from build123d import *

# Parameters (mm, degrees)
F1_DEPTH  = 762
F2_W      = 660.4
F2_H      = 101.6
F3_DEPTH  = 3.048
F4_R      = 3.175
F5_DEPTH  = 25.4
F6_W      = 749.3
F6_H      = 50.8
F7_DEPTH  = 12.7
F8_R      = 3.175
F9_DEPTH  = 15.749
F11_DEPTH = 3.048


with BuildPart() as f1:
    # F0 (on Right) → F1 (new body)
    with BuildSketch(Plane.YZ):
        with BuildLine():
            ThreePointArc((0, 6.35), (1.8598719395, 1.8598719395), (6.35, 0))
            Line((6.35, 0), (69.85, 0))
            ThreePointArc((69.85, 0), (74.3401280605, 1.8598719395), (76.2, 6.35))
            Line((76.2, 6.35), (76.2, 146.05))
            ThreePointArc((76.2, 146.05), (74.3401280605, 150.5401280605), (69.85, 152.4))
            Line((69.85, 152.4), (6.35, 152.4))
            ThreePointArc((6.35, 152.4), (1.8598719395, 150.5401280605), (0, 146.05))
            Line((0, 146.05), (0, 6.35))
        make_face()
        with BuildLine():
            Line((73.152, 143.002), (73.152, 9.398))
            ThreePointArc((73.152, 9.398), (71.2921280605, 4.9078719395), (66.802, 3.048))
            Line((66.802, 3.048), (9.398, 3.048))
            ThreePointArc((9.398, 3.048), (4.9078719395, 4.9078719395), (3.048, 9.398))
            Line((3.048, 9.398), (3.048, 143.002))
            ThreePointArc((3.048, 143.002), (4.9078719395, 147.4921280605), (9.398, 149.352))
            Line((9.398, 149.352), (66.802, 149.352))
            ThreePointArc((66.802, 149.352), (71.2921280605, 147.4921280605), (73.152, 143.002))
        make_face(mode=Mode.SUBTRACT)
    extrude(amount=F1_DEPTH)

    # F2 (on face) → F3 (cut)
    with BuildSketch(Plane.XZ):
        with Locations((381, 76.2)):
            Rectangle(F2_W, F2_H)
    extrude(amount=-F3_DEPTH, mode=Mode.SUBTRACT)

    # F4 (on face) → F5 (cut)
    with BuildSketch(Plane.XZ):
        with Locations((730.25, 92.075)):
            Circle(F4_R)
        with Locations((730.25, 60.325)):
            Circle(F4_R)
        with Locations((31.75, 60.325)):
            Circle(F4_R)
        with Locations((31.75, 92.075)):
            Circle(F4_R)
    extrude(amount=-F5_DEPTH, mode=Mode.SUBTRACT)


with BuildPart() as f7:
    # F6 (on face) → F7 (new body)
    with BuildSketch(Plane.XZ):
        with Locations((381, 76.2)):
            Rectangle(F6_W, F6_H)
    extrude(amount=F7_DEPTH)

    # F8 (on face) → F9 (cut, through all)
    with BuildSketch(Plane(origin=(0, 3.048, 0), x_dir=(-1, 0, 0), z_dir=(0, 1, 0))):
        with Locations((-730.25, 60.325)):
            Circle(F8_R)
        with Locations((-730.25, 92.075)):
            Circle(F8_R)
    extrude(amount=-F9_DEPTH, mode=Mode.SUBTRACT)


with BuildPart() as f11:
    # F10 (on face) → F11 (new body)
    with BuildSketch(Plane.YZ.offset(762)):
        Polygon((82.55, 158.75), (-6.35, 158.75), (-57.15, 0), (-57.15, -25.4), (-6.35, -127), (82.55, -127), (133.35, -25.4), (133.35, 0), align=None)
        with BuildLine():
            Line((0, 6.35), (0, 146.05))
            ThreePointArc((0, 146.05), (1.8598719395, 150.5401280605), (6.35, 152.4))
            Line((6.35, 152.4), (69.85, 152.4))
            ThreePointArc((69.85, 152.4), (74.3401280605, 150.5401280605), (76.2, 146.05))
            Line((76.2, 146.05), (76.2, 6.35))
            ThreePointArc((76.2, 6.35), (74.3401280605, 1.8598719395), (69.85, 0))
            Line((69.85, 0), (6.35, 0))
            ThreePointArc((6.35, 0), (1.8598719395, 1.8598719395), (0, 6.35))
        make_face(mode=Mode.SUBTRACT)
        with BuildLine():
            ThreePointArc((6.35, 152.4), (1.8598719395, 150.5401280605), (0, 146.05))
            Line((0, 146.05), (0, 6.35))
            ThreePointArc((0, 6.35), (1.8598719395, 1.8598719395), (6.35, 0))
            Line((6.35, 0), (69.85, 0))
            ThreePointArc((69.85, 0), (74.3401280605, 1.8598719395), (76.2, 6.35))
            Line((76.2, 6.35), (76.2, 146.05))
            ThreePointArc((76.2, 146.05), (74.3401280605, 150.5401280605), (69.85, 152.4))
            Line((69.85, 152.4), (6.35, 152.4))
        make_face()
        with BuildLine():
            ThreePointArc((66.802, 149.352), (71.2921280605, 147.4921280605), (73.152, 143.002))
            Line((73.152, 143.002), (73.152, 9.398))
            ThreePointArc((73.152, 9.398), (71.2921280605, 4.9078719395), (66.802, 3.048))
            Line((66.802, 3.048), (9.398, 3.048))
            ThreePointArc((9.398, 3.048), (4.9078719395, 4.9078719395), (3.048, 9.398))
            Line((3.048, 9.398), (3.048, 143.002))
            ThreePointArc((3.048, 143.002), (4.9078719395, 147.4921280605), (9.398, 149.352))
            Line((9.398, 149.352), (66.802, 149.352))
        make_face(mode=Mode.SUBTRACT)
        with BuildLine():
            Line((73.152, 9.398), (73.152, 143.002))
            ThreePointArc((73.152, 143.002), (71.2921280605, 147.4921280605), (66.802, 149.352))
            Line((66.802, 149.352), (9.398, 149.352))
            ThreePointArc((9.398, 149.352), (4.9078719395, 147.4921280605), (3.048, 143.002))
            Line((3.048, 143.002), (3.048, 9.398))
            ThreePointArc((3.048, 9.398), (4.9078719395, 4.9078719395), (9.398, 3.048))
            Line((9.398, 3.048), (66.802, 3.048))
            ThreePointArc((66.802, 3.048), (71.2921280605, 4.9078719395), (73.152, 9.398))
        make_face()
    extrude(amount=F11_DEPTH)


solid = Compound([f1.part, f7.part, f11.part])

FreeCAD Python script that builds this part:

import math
import FreeCAD as App
import Part
import Sketcher
from FreeCAD import Vector
Q = App.Units.Quantity


def add_polygon(sketch, points):
    """Adds a closed chain of lines whose ends are joined by coincident constraints."""
    first, n = sketch.GeometryCount, len(points)
    for a, b in zip(points, points[1:] + points[:1]):
        sketch.addGeometry(Part.LineSegment(App.Vector(*a, 0), App.Vector(*b, 0)), False)
    for i in range(n):
        sketch.addConstraint(Sketcher.Constraint("Coincident", first + i, 2, first + (i + 1) % n, 1))

doc = App.newDocument("Part")
body = doc.addObject("PartDesign::Body", "Body")

# Sketch on YZ plane
sketch1 = body.newObject("Sketcher::SketchObject", "Sketch")
sketch1.AttachmentSupport = (doc.getObject("YZ_Plane"), [""])
sketch1.MapMode = "FlatFace"
sketch1.addGeometry([
    Part.ArcOfCircle(Part.Circle(Vector(6.35, 6.35, 0), Vector(0, 0, 1), 6.35), math.radians(180), math.radians(270)),  # 0
    Part.LineSegment(Vector(6.35, 0, 0), Vector(69.85, 0, 0)),  # 1
    Part.ArcOfCircle(Part.Circle(Vector(69.85, 6.35, 0), Vector(0, 0, 1), 6.35), math.radians(-90), math.radians(0)),  # 2
    Part.LineSegment(Vector(76.2, 6.35, 0), Vector(76.2, 146.05, 0)),  # 3
    Part.ArcOfCircle(Part.Circle(Vector(69.85, 146.05, 0), Vector(0, 0, 1), 6.35), math.radians(0), math.radians(90)),  # 4
    Part.LineSegment(Vector(69.85, 152.4, 0), Vector(6.35, 152.4, 0)),  # 5
    Part.ArcOfCircle(Part.Circle(Vector(6.35, 146.05, 0), Vector(0, 0, 1), 6.35), math.radians(90), math.radians(180)),  # 6
    Part.LineSegment(Vector(0, 146.05, 0), Vector(0, 6.35, 0)),  # 7
    Part.ArcOfCircle(Part.Circle(Vector(66.802, 143.002, 0), Vector(0, 0, 1), 6.35), math.radians(0), math.radians(90)),  # 8
    Part.LineSegment(Vector(73.152, 143.002, 0), Vector(73.152, 9.398, 0)),  # 9
    Part.ArcOfCircle(Part.Circle(Vector(66.802, 9.398, 0), Vector(0, 0, 1), 6.35), math.radians(-90), math.radians(0)),  # 10
    Part.LineSegment(Vector(66.802, 3.048, 0), Vector(9.398, 3.048, 0)),  # 11
    Part.ArcOfCircle(Part.Circle(Vector(9.398, 9.398, 0), Vector(0, 0, 1), 6.35), math.radians(180), math.radians(270)),  # 12
    Part.LineSegment(Vector(3.048, 9.398, 0), Vector(3.048, 143.002, 0)),  # 13
    Part.ArcOfCircle(Part.Circle(Vector(9.398, 143.002, 0), Vector(0, 0, 1), 6.35), math.radians(90), math.radians(180)),  # 14
    Part.LineSegment(Vector(9.398, 149.352, 0), Vector(66.802, 149.352, 0)),  # 15
], False)
sketch1.addConstraint([
    Sketcher.Constraint("Tangent", 0, 2, 1, 1),
    Sketcher.Constraint("Tangent", 1, 2, 2, 1),
    Sketcher.Constraint("Tangent", 2, 2, 3, 1),
    Sketcher.Constraint("Tangent", 3, 2, 4, 1),
    Sketcher.Constraint("Tangent", 4, 2, 5, 1),
    Sketcher.Constraint("Tangent", 5, 2, 6, 1),
    Sketcher.Constraint("Tangent", 6, 2, 7, 1),
    Sketcher.Constraint("Tangent", 7, 2, 0, 1),
    Sketcher.Constraint("Tangent", 8, 1, 9, 1),
    Sketcher.Constraint("Tangent", 9, 2, 10, 2),
    Sketcher.Constraint("Tangent", 10, 1, 11, 1),
    Sketcher.Constraint("Tangent", 11, 2, 12, 2),
    Sketcher.Constraint("Tangent", 12, 1, 13, 1),
    Sketcher.Constraint("Tangent", 13, 2, 14, 2),
    Sketcher.Constraint("Tangent", 14, 1, 15, 1),
    Sketcher.Constraint("Tangent", 15, 2, 8, 2),
    Sketcher.Constraint("Horizontal", 1),
    Sketcher.Constraint("Vertical", 3),
    Sketcher.Constraint("Horizontal", 5),
    Sketcher.Constraint("Vertical", 7),
    Sketcher.Constraint("Vertical", 9),
    Sketcher.Constraint("Horizontal", 11),
    Sketcher.Constraint("Vertical", 13),
    Sketcher.Constraint("Horizontal", 15),
    Sketcher.Constraint("Equal", 0, 2),
    Sketcher.Constraint("Equal", 2, 4),
    Sketcher.Constraint("Equal", 4, 6),
    Sketcher.Constraint("Equal", 6, 8),
    Sketcher.Constraint("Equal", 8, 10),
    Sketcher.Constraint("Equal", 10, 12),
    Sketcher.Constraint("Equal", 12, 14),
    Sketcher.Constraint("PointOnObject", 0, 2, -1),
    Sketcher.Constraint("PointOnObject", 6, 2, -2),
    Sketcher.Constraint("Radius", 0, Q("0.25 in")),
    Sketcher.Constraint("DistanceX", 1, 1, 1, 2, Q("2.5 in")),
    Sketcher.Constraint("DistanceY", 3, 1, 3, 2, Q("5.5 in")),
    Sketcher.Constraint("DistanceX", 11, 2, 11, 1, Q("2.26 in")),
    Sketcher.Constraint("DistanceY", 9, 2, 9, 1, Q("5.26 in")),
    Sketcher.Constraint("DistanceX", -1, 1, 8, 3, Q("2.63 in")),
    Sketcher.Constraint("DistanceY", -1, 1, 8, 3, Q("5.63 in")),
])
pad1 = body.newObject("PartDesign::Pad", "Pad")
pad1.Profile = sketch1
pad1.Length = Q("30 in")

# Sketch on XZ plane
sketch2 = body.newObject("Sketcher::SketchObject", "Sketch001")
sketch2.AttachmentSupport = (doc.getObject("XZ_Plane"), [""])
sketch2.MapMode = "FlatFace"
add_polygon(sketch2, [(50.8, 127), (50.8, 25.4), (711.2, 25.4), (711.2, 127)])  # lines 0-3
sketch2.addConstraint([
    Sketcher.Constraint("Vertical", 0),
    Sketcher.Constraint("Horizontal", 1),
    Sketcher.Constraint("Vertical", 2),
    Sketcher.Constraint("Horizontal", 3),
    Sketcher.Constraint("DistanceX", 1, 1, 1, 2, Q("26 in")),
    Sketcher.Constraint("DistanceY", 0, 2, 0, 1, Q("4 in")),
    Sketcher.Constraint("DistanceX", -1, 1, 0, 2, Q("2 in")),
    Sketcher.Constraint("DistanceY", -1, 1, 0, 2, Q("1 in")),
])
pocket1 = body.newObject("PartDesign::Pocket", "Pocket")
pocket1.Profile = sketch2
pocket1.Length = Q("0.12 in")

# Sketch on XZ plane
sketch3 = body.newObject("Sketcher::SketchObject", "Sketch002")
sketch3.AttachmentSupport = (doc.getObject("XZ_Plane"), [""])
sketch3.MapMode = "FlatFace"
sketch3.addGeometry([
    Part.Circle(Vector(730.25, 92.075, 0), Vector(0, 0, 1), 3.175),
    Part.Circle(Vector(730.25, 60.325, 0), Vector(0, 0, 1), 3.175),
    Part.Circle(Vector(31.75, 60.325, 0), Vector(0, 0, 1), 3.175),
    Part.Circle(Vector(31.75, 92.075, 0), Vector(0, 0, 1), 3.175),
], False)
sketch3.addConstraint([
    Sketcher.Constraint("Equal", 0, 1),
    Sketcher.Constraint("Equal", 1, 2),
    Sketcher.Constraint("Equal", 2, 3),
    Sketcher.Constraint("Horizontal", 1, 3, 2, 3),
    Sketcher.Constraint("Horizontal", 0, 3, 3, 3),
    Sketcher.Constraint("Vertical", 0, 3, 1, 3),
    Sketcher.Constraint("Vertical", 2, 3, 3, 3),
    Sketcher.Constraint("Diameter", 0, Q("0.25 in")),
    Sketcher.Constraint("DistanceX", 2, 3, 1, 3, Q("27.5 in")),
    Sketcher.Constraint("DistanceX", -1, 1, 0, 3, Q("28.75 in")),
    Sketcher.Constraint("DistanceY", 1, 3, 0, 3, Q("1.25 in")),
    Sketcher.Constraint("DistanceY", -1, 1, 0, 3, Q("3.625 in")),
])
pocket2 = body.newObject("PartDesign::Pocket", "Pocket001")
pocket2.Profile = sketch3
pocket2.Length = Q("1 in")
body2 = doc.addObject("PartDesign::Body", "Body001")

# Sketch on XZ plane
sketch4 = body2.newObject("Sketcher::SketchObject", "Sketch003")
sketch4.AttachmentSupport = (doc.getObject("XZ_Plane001"), [""])
sketch4.MapMode = "FlatFace"
add_polygon(sketch4, [(6.35, 101.6), (6.35, 50.8), (755.65, 50.8), (755.65, 101.6)])  # lines 0-3
sketch4.addConstraint([
    Sketcher.Constraint("Vertical", 0),
    Sketcher.Constraint("Horizontal", 1),
    Sketcher.Constraint("Vertical", 2),
    Sketcher.Constraint("Horizontal", 3),
    Sketcher.Constraint("DistanceY", 0, 2, 0, 1, Q("2 in")),
    Sketcher.Constraint("DistanceX", 1, 1, 1, 2, Q("29.5 in")),
    Sketcher.Constraint("DistanceY", -1, 1, 0, 2, Q("2 in")),
    Sketcher.Constraint("DistanceX", -1, 1, 0, 2, Q("0.25 in")),
])
pad2 = body2.newObject("PartDesign::Pad", "Pad001")
pad2.Profile = sketch4
pad2.Length = Q("0.5 in")

# Sketch on XZ plane
sketch5 = body2.newObject("Sketcher::SketchObject", "Sketch004")
sketch5.AttachmentSupport = (doc.getObject("XZ_Plane001"), [""])
sketch5.MapMode = "FlatFace"
sketch5.AttachmentOffset = App.Placement(Vector(0, 0, -0.12 * 25.4), App.Rotation())
sketch5.addGeometry([
    Part.Circle(Vector(730.25, 60.325, 0), Vector(0, 0, 1), 3.175),
    Part.Circle(Vector(730.25, 92.075, 0), Vector(0, 0, 1), 3.175),
], False)
sketch5.addConstraint([
    Sketcher.Constraint("Equal", 0, 1),
    Sketcher.Constraint("Vertical", 0, 3, 1, 3),
    Sketcher.Constraint("Diameter", 0, Q("0.25 in")),
    Sketcher.Constraint("DistanceX", -1, 1, 0, 3, Q("28.75 in")),
    Sketcher.Constraint("DistanceY", 0, 3, 1, 3, Q("1.25 in")),
    Sketcher.Constraint("DistanceY", -1, 1, 0, 3, Q("2.375 in")),
])
pocket3 = body2.newObject("PartDesign::Pocket", "Pocket002")
pocket3.Profile = sketch5
pocket3.Type = "ThroughAll"
pocket3.Reversed = True
body3 = doc.addObject("PartDesign::Body", "Body002")

# Sketch on YZ plane
sketch6 = body3.newObject("Sketcher::SketchObject", "Sketch005")
sketch6.AttachmentSupport = (doc.getObject("YZ_Plane002"), [""])
sketch6.MapMode = "FlatFace"
sketch6.AttachmentOffset = App.Placement(Vector(0, 0, 30 * 25.4), App.Rotation())
add_polygon(sketch6, [(82.55, 158.75), (-6.35, 158.75), (-57.15, 0), (-57.15, -25.4), (-6.35, -127), (82.55, -127), (133.35, -25.4), (133.35, 0)])  # lines 0-7
sketch6.addConstraint([
    Sketcher.Constraint("Horizontal", 0),
    Sketcher.Constraint("Vertical", 2),
    Sketcher.Constraint("Horizontal", 4),
    Sketcher.Constraint("Vertical", 6),
    Sketcher.Constraint("PointOnObject", 1, 2, -1),
    Sketcher.Constraint("PointOnObject", 6, 2, -1),
    Sketcher.Constraint("Horizontal", 2, 2, 5, 2),
    Sketcher.Constraint("Vertical", 0, 2, 3, 2),
    Sketcher.Constraint("Vertical", 4, 2, 7, 2),
    Sketcher.Constraint("Equal", 3, 5),
    Sketcher.Constraint("DistanceY", 2, 2, 2, 1, Q("1 in")),
    Sketcher.Constraint("DistanceX", 0, 2, 0, 1, Q("3.5 in")),
    Sketcher.Constraint("DistanceY", 3, 2, -1, 1, Q("5 in")),
    Sketcher.Constraint("DistanceX", 1, 2, 0, 2, Q("2 in")),
    Sketcher.Constraint("DistanceX", 0, 2, -1, 1, Q("0.25 in")),
    Sketcher.Constraint("DistanceY", -1, 1, 0, 2, Q("6.25 in")),
])
pad3 = body3.newObject("PartDesign::Pad", "Pad002")
pad3.Profile = sketch6
pad3.Length = Q("0.12 in")

doc.recompute()
